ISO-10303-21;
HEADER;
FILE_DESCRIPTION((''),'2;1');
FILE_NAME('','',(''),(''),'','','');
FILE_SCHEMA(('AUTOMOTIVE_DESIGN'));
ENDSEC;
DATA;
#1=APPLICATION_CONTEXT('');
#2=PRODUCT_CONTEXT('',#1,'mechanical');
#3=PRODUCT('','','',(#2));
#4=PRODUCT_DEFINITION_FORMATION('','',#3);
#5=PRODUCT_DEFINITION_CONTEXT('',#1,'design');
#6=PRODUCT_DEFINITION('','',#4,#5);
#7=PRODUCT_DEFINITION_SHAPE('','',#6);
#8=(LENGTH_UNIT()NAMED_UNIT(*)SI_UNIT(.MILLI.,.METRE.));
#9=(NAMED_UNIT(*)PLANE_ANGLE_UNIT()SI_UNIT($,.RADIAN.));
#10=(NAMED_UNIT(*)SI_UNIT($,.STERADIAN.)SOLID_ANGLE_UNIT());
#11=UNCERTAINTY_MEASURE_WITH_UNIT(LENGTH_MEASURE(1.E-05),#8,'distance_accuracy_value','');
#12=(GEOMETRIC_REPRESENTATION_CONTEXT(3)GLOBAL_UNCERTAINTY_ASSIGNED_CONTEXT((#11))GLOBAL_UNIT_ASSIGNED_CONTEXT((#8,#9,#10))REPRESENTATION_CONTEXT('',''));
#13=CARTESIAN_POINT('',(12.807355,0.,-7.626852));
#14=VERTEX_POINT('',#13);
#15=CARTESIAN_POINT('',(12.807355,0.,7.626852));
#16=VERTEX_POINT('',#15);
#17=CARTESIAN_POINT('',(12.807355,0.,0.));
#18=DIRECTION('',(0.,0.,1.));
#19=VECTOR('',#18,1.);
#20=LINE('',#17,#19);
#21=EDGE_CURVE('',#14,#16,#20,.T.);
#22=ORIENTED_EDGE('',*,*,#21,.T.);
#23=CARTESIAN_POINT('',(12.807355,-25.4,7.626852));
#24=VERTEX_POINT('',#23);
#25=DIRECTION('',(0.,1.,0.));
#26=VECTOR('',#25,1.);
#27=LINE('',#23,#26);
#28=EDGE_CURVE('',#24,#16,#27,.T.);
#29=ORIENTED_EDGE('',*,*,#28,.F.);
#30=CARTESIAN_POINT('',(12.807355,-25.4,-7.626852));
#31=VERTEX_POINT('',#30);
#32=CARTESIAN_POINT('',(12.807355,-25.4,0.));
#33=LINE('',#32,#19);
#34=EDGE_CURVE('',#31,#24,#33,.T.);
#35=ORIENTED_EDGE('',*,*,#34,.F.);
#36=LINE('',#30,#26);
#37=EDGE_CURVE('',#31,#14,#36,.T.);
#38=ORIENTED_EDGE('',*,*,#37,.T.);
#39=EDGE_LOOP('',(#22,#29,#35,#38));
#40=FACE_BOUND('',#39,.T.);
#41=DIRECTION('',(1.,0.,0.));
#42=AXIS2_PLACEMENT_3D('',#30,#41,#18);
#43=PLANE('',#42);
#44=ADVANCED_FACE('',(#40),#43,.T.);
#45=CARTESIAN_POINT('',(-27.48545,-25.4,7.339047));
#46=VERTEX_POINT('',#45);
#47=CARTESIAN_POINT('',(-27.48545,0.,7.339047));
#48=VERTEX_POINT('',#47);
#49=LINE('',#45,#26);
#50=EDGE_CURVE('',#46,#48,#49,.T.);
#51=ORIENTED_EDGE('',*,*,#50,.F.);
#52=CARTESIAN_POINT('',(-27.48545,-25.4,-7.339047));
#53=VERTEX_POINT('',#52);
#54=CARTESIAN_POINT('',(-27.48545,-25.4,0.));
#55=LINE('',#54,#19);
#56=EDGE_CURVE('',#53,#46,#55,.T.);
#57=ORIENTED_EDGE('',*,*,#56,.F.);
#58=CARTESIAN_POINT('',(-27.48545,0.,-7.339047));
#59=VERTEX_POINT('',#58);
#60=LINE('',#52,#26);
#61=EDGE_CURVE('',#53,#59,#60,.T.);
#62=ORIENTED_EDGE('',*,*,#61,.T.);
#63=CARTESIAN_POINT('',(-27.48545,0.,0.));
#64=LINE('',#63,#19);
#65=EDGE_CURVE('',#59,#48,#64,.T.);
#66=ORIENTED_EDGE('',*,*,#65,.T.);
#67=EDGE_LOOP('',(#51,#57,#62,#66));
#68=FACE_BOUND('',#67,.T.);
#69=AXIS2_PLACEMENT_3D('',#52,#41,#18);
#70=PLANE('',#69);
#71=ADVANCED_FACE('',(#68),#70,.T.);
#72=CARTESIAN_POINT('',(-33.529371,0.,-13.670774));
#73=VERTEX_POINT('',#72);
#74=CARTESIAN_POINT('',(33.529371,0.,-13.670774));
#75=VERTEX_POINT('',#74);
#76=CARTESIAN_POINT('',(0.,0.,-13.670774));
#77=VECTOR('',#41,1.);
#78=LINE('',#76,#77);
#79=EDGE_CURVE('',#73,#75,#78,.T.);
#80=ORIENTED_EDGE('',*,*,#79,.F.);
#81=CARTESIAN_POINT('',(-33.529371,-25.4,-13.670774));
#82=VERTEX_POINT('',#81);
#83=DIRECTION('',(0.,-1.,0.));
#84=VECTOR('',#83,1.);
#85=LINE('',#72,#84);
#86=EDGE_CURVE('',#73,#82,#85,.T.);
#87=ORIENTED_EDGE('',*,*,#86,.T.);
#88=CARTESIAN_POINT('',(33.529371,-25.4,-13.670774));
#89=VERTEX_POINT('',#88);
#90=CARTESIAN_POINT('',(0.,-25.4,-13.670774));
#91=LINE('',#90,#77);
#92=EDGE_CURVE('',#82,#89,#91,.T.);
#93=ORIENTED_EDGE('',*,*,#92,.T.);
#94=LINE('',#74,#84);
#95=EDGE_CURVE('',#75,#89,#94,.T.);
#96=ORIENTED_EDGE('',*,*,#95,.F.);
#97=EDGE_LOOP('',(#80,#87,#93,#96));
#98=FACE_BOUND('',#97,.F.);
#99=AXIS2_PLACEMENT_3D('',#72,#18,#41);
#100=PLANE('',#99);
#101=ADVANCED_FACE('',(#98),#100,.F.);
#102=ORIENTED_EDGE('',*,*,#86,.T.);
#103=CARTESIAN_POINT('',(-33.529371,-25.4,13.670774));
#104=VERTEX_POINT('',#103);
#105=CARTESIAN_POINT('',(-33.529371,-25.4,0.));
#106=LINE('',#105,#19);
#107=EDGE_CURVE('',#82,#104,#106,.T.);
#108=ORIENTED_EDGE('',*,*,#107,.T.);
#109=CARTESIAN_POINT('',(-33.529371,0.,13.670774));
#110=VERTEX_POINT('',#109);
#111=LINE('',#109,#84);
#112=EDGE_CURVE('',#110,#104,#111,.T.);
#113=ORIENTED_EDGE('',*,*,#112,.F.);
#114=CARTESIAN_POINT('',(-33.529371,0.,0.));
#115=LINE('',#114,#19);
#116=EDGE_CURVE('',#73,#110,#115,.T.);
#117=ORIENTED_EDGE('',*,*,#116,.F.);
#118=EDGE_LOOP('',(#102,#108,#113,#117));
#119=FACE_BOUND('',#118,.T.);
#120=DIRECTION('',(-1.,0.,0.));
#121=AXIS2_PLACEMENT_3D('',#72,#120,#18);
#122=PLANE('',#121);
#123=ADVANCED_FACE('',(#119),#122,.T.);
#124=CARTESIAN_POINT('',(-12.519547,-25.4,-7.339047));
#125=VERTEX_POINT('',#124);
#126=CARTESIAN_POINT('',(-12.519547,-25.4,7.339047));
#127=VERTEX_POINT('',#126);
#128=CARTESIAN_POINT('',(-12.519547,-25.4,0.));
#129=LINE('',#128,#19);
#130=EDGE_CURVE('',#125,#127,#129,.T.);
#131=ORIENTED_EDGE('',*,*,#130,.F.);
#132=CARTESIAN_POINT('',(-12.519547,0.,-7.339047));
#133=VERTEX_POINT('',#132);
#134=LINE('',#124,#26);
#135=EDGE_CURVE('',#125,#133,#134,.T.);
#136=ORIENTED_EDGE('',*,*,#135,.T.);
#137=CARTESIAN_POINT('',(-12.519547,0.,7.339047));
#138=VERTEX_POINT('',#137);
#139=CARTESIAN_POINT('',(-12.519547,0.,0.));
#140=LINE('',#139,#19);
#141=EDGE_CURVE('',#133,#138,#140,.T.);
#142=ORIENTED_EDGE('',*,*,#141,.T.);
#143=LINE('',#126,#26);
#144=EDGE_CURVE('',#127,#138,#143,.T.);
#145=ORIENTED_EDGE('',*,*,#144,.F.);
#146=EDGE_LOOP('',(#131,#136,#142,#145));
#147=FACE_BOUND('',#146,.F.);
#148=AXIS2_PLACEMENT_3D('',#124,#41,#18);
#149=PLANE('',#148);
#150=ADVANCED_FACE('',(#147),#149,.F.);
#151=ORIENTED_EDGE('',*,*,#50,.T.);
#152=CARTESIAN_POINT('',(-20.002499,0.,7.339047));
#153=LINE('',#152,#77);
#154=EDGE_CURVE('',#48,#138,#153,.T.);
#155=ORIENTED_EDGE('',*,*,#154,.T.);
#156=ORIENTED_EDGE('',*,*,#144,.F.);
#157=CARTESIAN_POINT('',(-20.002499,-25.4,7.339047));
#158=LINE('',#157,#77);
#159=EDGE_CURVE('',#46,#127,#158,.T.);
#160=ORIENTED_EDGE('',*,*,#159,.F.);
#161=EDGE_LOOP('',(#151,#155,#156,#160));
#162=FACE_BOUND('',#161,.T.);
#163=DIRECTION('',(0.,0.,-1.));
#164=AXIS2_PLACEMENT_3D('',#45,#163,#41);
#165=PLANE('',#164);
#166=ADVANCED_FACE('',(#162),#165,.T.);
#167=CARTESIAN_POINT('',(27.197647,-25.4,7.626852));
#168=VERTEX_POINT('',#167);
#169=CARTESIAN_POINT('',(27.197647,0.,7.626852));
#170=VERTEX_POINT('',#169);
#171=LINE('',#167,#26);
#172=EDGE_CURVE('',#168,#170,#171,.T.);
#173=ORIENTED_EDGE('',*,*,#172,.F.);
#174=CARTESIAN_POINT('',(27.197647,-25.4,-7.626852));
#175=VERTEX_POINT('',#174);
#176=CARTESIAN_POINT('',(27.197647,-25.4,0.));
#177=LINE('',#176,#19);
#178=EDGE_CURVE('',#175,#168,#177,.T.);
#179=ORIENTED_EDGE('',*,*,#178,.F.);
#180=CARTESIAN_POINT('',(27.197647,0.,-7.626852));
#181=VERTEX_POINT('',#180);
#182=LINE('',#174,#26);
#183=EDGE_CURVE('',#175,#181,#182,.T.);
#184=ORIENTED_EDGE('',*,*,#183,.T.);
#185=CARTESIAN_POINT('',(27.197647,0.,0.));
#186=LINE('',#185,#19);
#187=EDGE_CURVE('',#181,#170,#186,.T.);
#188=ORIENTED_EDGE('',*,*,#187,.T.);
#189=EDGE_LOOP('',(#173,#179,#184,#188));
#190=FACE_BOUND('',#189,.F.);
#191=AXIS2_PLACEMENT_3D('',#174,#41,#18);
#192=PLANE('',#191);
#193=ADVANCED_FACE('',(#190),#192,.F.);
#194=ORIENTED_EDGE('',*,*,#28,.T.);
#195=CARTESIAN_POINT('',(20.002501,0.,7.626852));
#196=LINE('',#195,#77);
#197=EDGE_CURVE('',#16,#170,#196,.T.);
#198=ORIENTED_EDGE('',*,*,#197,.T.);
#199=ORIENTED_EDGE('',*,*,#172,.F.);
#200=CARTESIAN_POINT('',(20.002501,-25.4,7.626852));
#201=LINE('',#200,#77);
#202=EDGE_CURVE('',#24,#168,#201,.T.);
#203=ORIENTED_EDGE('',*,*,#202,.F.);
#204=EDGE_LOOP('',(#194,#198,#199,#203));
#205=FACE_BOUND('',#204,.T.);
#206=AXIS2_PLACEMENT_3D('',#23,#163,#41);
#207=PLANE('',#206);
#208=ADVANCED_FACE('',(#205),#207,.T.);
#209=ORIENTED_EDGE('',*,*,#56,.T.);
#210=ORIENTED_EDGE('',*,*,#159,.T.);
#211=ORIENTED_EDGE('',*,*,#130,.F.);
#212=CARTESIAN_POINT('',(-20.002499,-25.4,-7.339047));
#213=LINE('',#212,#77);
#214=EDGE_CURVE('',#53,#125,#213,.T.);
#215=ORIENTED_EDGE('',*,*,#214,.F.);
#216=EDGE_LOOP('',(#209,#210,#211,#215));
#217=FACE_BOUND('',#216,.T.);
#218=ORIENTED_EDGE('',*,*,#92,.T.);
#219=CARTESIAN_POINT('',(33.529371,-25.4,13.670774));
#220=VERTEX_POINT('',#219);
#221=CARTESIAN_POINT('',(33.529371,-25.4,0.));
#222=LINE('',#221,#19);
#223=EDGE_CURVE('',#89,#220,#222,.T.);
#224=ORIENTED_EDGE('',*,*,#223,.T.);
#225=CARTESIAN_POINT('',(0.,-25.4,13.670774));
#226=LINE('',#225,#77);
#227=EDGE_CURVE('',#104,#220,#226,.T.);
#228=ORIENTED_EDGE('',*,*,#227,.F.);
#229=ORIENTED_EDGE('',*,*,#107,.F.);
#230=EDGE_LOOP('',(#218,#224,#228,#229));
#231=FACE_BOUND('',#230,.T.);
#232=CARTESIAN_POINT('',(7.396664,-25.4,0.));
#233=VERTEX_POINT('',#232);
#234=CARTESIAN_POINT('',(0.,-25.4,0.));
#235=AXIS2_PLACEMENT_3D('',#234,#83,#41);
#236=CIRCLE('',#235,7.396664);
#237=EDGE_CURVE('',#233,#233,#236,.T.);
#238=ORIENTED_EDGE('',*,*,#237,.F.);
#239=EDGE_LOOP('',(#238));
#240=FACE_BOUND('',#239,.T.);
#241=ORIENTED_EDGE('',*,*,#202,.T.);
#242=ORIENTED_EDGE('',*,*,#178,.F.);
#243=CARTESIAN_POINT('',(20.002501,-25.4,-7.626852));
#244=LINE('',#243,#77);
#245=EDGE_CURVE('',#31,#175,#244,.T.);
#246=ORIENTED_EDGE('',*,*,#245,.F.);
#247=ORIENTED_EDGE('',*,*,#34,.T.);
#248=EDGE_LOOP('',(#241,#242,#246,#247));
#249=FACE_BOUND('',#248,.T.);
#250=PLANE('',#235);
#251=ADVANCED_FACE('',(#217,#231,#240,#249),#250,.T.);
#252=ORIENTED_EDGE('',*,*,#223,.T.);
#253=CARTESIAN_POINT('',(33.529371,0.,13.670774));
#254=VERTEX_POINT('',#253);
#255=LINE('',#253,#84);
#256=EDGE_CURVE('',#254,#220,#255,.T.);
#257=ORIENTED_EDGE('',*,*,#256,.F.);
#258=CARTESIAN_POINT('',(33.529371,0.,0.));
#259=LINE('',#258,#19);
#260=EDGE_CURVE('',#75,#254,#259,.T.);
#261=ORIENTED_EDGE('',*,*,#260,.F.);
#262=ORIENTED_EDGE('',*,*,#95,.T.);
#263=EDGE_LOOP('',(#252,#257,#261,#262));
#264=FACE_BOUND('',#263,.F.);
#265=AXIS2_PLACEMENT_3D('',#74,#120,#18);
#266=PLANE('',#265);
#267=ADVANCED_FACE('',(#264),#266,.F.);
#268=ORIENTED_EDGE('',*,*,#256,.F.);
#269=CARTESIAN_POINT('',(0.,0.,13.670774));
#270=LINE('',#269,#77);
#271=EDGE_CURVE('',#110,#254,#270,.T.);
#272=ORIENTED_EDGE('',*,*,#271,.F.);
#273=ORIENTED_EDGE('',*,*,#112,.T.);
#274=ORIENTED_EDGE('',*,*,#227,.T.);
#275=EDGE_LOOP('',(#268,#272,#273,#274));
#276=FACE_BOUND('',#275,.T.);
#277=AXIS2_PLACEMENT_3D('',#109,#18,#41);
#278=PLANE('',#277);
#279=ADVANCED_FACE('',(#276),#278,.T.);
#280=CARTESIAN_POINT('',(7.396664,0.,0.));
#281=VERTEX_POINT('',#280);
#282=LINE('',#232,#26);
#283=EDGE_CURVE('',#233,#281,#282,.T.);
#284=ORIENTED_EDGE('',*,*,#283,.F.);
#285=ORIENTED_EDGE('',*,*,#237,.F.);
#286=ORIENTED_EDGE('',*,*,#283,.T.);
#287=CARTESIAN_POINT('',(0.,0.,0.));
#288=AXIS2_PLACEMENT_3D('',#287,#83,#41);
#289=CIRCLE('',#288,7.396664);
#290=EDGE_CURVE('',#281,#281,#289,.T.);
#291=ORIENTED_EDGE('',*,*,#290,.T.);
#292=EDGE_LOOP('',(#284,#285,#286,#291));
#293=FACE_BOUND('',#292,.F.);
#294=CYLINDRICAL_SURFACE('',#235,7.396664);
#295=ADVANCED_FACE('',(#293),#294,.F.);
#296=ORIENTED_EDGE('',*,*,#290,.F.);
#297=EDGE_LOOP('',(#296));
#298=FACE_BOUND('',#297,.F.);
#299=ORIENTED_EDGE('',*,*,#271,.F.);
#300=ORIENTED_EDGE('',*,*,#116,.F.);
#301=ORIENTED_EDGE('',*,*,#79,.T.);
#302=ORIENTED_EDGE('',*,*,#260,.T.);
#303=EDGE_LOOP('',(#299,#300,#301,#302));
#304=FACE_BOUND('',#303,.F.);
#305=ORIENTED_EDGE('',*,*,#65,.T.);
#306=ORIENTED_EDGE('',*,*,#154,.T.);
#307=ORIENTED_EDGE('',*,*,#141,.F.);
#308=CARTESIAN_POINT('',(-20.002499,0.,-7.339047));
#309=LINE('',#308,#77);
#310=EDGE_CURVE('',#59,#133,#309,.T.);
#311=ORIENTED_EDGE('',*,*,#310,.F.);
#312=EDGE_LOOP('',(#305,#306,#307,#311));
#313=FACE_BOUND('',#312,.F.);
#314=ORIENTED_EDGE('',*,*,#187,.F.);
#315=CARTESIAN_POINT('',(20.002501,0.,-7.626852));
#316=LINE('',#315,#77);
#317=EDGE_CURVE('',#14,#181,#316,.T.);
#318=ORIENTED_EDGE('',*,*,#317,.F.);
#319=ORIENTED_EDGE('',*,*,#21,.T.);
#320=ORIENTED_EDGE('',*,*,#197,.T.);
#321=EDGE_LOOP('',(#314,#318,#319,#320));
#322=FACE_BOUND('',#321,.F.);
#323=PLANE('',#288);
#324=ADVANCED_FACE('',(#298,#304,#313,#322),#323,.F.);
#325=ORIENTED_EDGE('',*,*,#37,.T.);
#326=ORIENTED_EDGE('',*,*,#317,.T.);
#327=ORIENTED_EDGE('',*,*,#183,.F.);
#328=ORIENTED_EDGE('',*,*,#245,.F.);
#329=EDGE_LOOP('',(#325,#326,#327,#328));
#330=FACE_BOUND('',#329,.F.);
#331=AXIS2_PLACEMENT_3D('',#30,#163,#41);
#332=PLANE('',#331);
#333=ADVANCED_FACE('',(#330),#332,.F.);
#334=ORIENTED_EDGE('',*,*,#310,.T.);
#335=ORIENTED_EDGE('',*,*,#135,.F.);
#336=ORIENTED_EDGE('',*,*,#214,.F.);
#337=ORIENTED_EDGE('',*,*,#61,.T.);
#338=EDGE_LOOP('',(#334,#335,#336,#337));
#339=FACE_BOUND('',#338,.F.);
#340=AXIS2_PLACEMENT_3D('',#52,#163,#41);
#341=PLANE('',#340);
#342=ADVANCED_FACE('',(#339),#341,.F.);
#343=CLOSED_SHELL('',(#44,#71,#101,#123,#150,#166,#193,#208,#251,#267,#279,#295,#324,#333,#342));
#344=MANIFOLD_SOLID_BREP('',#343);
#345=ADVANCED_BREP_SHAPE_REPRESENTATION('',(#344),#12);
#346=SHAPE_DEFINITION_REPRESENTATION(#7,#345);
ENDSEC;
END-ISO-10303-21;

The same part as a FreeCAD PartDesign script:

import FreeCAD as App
import Part
import Sketcher

doc = App.newDocument("Part")
params = doc.addObject("Spreadsheet::Sheet", "Params")
for row, (alias, value) in enumerate([
    ("pad1_length", "1 in"),
    ("pocket1_length", "1 in"),
    ("pocket2_length", "1 in"),
    ("pocket3_length", "1 in"),
], start=1):
    params.set(f"A{row}", alias)
    params.set(f"B{row}", "=" + value)
    params.setAlias(f"B{row}", alias)

body = doc.addObject("PartDesign::Body", "Body")

sketch1 = body.newObject("Sketcher::SketchObject", "Sketch")
sketch1.AttachmentSupport = (doc.getObject("XZ_Plane"), [""])
sketch1.MapMode = "FlatFace"
sketch1.addGeometry(Part.LineSegment(App.Vector(-34, 14, 0), App.Vector(-34, -14, 0)), False)
sketch1.addGeometry(Part.LineSegment(App.Vector(-34, -14, 0), App.Vector(34, -14, 0)), False)
sketch1.addGeometry(Part.LineSegment(App.Vector(34, -14, 0), App.Vector(34, 14, 0)), False)
sketch1.addGeometry(Part.LineSegment(App.Vector(34, 14, 0), App.Vector(-34, 14, 0)), False)
sketch1.addConstraint(Sketcher.Constraint("Coincident", 0, 2, 1, 1))
sketch1.addConstraint(Sketcher.Constraint("Coincident", 1, 2, 2, 1))
sketch1.addConstraint(Sketcher.Constraint("Coincident", 2, 2, 3, 1))
sketch1.addConstraint(Sketcher.Constraint("Coincident", 3, 2, 0, 1))
sketch1.addConstraint(Sketcher.Constraint("Vertical", 0))
sketch1.addConstraint(Sketcher.Constraint("Horizontal", 1))
sketch1.addConstraint(Sketcher.Constraint("Vertical", 2))
sketch1.addConstraint(Sketcher.Constraint("Horizontal", 3))
sketch1.addConstraint(Sketcher.Constraint("Symmetric", 0, 2, 2, 2, -1, 1))
sketch1.addConstraint(Sketcher.Constraint("DistanceX", 1, 1, 1, 2, 67.058742))
sketch1.addConstraint(Sketcher.Constraint("DistanceY", 0, 2, 0, 1, 27.341548))
pad1 = body.newObject("PartDesign::Pad", "Pad")
pad1.Profile = sketch1
pad1.setExpression("Length", "Params.pad1_length")

sketch2 = body.newObject("Sketcher::SketchObject", "Sketch001")
sketch2.AttachmentSupport = (doc.getObject("XZ_Plane"), [""])
sketch2.MapMode = "FlatFace"
sketch2.AttachmentOffset = App.Placement(App.Vector(0, 0, 1 * 25.4), App.Rotation())
sketch2.addGeometry(Part.LineSegment(App.Vector(-27, 7, 0), App.Vector(-27, -7, 0)), False)
sketch2.addGeometry(Part.LineSegment(App.Vector(-27, -7, 0), App.Vector(-13, -7, 0)), False)
sketch2.addGeometry(Part.LineSegment(App.Vector(-13, -7, 0), App.Vector(-13, 7, 0)), False)
sketch2.addGeometry(Part.LineSegment(App.Vector(-13, 7, 0), App.Vector(-27, 7, 0)), False)
sketch2.addConstraint(Sketcher.Constraint("Coincident", 0, 2, 1, 1))
sketch2.addConstraint(Sketcher.Constraint("Coincident", 1, 2, 2, 1))
sketch2.addConstraint(Sketcher.Constraint("Coincident", 2, 2, 3, 1))
sketch2.addConstraint(Sketcher.Constraint("Coincident", 3, 2, 0, 1))
sketch2.addConstraint(Sketcher.Constraint("Vertical", 0))
sketch2.addConstraint(Sketcher.Constraint("Horizontal", 1))
sketch2.addConstraint(Sketcher.Constraint("Vertical", 2))
sketch2.addConstraint(Sketcher.Constraint("Horizontal", 3))
sketch2.addConstraint(Sketcher.Constraint("DistanceX", 1, 1, 1, 2, 14.965903))
sketch2.addConstraint(Sketcher.Constraint("DistanceY", 0, 2, 0, 1, 14.678094))
sketch2.addConstraint(Sketcher.Constraint("DistanceX", 0, 2, -1, 1, 27.48545))
sketch2.addConstraint(Sketcher.Constraint("DistanceY", 0, 2, -1, 1, 7.339047))
pocket1 = body.newObject("PartDesign::Pocket", "Pocket")
pocket1.Profile = sketch2
pocket1.setExpression("Length", "Params.pocket1_length")

sketch3 = body.newObject("Sketcher::SketchObject", "Sketch002")
sketch3.AttachmentSupport = (doc.getObject("XZ_Plane"), [""])
sketch3.MapMode = "FlatFace"
sketch3.AttachmentOffset = App.Placement(App.Vector(0, 0, 1 * 25.4), App.Rotation())
sketch3.addGeometry(Part.Circle(App.Vector(0, 0, 0), App.Vector(0, 0, 1), 7), False)
sketch3.addConstraint(Sketcher.Constraint("Coincident", 0, 3, -1, 1))
sketch3.addConstraint(Sketcher.Constraint("Diameter", 0, 14.793328))
pocket2 = body.newObject("PartDesign::Pocket", "Pocket001")
pocket2.Profile = sketch3
pocket2.setExpression("Length", "Params.pocket2_length")

sketch4 = body.newObject("Sketcher::SketchObject", "Sketch003")
sketch4.AttachmentSupport = (doc.getObject("XZ_Plane"), [""])
sketch4.MapMode = "FlatFace"
sketch4.AttachmentOffset = App.Placement(App.Vector(0, 0, 1 * 25.4), App.Rotation())
sketch4.addGeometry(Part.LineSegment(App.Vector(13, 8, 0), App.Vector(13, -8, 0)), False)
sketch4.addGeometry(Part.LineSegment(App.Vector(13, -8, 0), App.Vector(27, -8, 0)), False)
sketch4.addGeometry(Part.LineSegment(App.Vector(27, -8, 0), App.Vector(27, 8, 0)), False)
sketch4.addGeometry(Part.LineSegment(App.Vector(27, 8, 0), App.Vector(13, 8, 0)), False)
sketch4.addConstraint(Sketcher.Constraint("Coincident", 0, 2, 1, 1))
sketch4.addConstraint(Sketcher.Constraint("Coincident", 1, 2, 2, 1))
sketch4.addConstraint(Sketcher.Constraint("Coincident", 2, 2, 3, 1))
sketch4.addConstraint(Sketcher.Constraint("Coincident", 3, 2, 0, 1))
sketch4.addConstraint(Sketcher.Constraint("Vertical", 0))
sketch4.addConstraint(Sketcher.Constraint("Horizontal", 1))
sketch4.addConstraint(Sketcher.Constraint("Vertical", 2))
sketch4.addConstraint(Sketcher.Constraint("Horizontal", 3))
sketch4.addConstraint(Sketcher.Constraint("DistanceX", 1, 1, 1, 2, 14.390292))
sketch4.addConstraint(Sketcher.Constraint("DistanceY", 0, 2, 0, 1, 15.253704))
sketch4.addConstraint(Sketcher.Constraint("DistanceX", -1, 1, 0, 2, 12.807355))
sketch4.addConstraint(Sketcher.Constraint("DistanceY", 0, 2, -1, 1, 7.626852))
pocket3 = body.newObject("PartDesign::Pocket", "Pocket002")
pocket3.Profile = sketch4
pocket3.setExpression("Length", "Params.pocket3_length")

doc.recompute()
